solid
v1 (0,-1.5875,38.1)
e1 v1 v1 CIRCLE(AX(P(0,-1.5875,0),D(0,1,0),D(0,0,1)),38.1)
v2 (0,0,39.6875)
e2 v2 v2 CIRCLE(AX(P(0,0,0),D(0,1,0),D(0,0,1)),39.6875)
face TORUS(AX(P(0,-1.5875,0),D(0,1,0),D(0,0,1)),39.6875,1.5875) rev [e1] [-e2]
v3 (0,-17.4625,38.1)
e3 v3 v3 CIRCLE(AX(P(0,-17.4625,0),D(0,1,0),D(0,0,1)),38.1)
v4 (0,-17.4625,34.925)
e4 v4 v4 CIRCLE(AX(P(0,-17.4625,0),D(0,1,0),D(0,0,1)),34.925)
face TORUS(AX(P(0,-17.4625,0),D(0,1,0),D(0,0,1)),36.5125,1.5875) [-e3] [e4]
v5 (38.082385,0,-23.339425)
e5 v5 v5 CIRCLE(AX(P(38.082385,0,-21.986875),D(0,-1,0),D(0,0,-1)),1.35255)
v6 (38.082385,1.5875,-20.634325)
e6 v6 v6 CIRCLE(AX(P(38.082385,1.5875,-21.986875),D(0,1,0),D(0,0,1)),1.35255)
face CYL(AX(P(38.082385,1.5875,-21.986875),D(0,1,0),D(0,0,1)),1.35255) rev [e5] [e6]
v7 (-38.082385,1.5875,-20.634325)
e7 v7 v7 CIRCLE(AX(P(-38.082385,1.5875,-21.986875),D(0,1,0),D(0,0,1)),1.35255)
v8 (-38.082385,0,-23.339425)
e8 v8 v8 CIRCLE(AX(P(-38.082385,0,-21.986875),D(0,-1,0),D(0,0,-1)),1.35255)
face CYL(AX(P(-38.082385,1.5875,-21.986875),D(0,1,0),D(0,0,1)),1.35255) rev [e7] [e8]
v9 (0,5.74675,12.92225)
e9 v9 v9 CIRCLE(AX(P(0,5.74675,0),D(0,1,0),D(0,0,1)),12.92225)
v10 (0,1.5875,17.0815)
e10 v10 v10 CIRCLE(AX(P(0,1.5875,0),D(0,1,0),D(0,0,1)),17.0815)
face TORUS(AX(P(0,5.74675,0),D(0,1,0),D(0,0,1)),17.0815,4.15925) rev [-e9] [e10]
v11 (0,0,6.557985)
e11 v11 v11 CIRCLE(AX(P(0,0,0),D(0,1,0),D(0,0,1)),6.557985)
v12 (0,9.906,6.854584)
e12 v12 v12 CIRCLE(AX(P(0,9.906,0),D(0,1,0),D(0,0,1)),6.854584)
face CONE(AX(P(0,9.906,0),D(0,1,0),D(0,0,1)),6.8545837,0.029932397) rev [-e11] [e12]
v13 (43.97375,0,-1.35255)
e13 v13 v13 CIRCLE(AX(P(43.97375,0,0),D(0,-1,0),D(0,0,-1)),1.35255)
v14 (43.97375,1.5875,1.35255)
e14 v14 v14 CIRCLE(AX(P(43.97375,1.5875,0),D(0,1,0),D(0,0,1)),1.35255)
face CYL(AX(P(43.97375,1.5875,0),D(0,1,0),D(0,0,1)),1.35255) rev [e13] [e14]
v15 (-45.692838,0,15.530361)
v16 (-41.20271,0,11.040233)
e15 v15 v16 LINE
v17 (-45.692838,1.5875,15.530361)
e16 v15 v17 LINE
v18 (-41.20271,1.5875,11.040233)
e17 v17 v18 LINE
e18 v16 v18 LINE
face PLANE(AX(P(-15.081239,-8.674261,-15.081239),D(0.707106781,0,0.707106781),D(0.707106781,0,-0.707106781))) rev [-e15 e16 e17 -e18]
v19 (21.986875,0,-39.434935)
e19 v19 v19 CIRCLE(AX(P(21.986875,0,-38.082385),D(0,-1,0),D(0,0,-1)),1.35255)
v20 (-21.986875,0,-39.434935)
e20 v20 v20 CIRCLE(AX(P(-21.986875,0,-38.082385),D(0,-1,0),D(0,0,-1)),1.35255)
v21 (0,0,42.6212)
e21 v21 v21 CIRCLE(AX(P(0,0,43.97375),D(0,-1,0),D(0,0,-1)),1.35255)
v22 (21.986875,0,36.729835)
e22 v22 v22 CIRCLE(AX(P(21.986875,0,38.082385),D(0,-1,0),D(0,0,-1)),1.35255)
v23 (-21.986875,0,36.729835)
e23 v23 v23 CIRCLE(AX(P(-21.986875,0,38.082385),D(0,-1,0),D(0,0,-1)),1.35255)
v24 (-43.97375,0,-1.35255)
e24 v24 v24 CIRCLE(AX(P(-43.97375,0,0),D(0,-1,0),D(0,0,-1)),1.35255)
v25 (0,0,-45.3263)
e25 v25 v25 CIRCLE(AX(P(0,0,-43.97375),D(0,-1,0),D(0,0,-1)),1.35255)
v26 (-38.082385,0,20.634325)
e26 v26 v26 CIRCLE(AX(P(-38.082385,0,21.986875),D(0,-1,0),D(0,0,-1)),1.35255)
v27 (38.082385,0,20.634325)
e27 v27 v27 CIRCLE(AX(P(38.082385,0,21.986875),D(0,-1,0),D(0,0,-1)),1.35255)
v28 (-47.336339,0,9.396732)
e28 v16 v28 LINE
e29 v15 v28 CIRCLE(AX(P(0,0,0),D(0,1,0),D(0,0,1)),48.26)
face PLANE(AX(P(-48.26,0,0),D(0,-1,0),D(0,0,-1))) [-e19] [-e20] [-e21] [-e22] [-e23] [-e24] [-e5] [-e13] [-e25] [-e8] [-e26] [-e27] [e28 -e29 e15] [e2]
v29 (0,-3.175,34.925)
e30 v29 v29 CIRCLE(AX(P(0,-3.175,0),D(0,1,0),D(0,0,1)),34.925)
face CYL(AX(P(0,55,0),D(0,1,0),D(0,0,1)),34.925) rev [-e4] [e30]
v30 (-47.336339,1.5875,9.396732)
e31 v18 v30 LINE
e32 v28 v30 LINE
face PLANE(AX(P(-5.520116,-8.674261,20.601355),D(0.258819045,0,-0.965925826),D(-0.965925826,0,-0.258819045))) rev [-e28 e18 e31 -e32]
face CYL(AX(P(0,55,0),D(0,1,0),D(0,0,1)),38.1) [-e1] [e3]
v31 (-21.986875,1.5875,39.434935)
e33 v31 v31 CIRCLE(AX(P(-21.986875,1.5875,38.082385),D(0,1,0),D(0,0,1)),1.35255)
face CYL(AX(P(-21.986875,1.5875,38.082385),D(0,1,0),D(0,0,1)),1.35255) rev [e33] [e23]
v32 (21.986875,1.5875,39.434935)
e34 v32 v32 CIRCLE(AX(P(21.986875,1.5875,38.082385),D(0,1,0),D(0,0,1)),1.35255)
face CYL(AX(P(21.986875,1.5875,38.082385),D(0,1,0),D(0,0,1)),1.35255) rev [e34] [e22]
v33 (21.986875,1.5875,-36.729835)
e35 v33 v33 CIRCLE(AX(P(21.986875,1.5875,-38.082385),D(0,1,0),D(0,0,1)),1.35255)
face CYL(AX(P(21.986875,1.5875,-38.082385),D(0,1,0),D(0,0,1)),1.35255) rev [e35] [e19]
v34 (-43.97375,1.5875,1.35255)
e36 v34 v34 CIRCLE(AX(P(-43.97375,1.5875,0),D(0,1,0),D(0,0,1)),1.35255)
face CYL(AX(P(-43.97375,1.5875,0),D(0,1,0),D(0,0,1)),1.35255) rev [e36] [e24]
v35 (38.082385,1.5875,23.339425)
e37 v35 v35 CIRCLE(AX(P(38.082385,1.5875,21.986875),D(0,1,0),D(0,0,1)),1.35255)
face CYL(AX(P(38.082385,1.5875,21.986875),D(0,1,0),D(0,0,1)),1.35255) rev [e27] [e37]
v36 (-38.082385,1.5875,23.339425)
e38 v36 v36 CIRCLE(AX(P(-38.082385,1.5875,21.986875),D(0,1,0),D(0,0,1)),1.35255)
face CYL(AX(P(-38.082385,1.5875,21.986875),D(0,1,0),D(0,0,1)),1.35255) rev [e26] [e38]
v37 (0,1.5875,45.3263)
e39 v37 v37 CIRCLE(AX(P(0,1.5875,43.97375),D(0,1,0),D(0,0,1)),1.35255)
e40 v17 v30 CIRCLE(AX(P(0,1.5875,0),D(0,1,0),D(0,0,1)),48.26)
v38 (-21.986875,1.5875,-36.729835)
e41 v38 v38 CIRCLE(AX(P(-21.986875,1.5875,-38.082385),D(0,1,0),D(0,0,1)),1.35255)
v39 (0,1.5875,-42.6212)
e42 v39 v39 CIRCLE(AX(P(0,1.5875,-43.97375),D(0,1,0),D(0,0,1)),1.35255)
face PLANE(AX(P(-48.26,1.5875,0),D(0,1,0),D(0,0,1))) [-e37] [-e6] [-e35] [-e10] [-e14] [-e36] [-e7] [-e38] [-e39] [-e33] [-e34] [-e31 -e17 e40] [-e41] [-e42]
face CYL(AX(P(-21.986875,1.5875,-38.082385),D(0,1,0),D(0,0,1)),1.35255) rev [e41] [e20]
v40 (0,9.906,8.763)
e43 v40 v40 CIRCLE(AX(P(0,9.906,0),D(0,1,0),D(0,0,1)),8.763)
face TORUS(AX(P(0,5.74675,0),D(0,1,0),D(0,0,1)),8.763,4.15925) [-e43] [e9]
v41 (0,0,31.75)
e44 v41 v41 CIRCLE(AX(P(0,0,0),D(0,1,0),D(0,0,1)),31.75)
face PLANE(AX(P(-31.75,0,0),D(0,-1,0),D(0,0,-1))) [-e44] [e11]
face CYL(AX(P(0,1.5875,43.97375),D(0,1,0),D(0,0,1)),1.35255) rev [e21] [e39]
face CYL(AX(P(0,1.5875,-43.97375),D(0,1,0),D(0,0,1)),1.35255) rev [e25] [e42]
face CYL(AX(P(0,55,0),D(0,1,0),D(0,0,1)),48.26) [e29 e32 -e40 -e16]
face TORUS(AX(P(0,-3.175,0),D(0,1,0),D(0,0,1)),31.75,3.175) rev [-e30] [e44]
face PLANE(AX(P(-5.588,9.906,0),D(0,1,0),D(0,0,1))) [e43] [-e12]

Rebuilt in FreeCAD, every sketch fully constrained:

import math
import FreeCAD as App
import Part
import Sketcher
from FreeCAD import Vector
Q = App.Units.Quantity

doc = App.newDocument("Part")
params = doc.addObject("Spreadsheet::Sheet", "Params")
for row, (alias, value) in enumerate([
    ("sketch1_radius", "0.0625 in"),
    ("sketch1_radius2", "0.125 in"),
    ("sketch1_width", "1.03 in"),
    ("sketch1_height", "0.39 in"),
    ("sketch1_width2", "0.125 in"),
    ("revolution_angle", "360 deg"),
    ("hole_diameter", "0.1065 in"),
    ("sketch3_width", "1.14 in"),
    ("sketch3_width2", "0.75 in"),
    ("sketch3_height", "0.219 in"),
    ("groove_angle", "360 deg"),
    ("sketch4_radius", "1.9 in"),
    ("sketch4_length", "0.25 in"),
    ("pocket1_length", "0.0625 in"),
], start=1):
    params.set(f"A{row}", alias)
    params.set(f"B{row}", "=" + value)
    params.setAlias(f"B{row}", alias)

body = doc.addObject("PartDesign::Body", "Body")

sketch1 = doc.addObject("Sketcher::SketchObject", "Sketch")
body.addObject(sketch1)
sketch1.AttachmentSupport = (doc.XY_Plane, [""])
sketch1.MapMode = "FlatFace"
sketch1.addGeometry([
    Part.LineSegment(Vector(-48.3, 0, 0), Vector(-39.7, 0, 0)),
    Part.ArcOfCircle(Part.Circle(Vector(-39.7, -1.6, 0), Vector(0, 0, 1), 1.6), math.radians(0), math.radians(90)),
    Part.LineSegment(Vector(-38.1, -1.6, 0), Vector(-38.1, -17.5, 0)),
    Part.ArcOfCircle(Part.Circle(Vector(-36.5, -17.5, 0), Vector(0, 0, 1), 1.6), math.radians(180), math.radians(360)),
    Part.LineSegment(Vector(-34.9, -17.5, 0), Vector(-34.9, -3.2, 0)),
    Part.ArcOfCircle(Part.Circle(Vector(-31.7, -3.2, 0), Vector(0, 0, 1), 3.2), math.radians(90), math.radians(180)),
    Part.LineSegment(Vector(-31.8, 0, 0), Vector(-5.6, 0, 0)),
    Part.LineSegment(Vector(-5.6, 0, 0), Vector(-5.6, 9.9, 0)),
    Part.LineSegment(Vector(-5.6, 9.9, 0), Vector(-8.8, 9.9, 0)),
    Part.ArcOfCircle(Part.Circle(Vector(-8.8, 5.7, 0), Vector(0, 0, 1), 4.2), math.radians(90), math.radians(180)),
    Part.ArcOfCircle(Part.Circle(Vector(-17.1, 5.7, 0), Vector(0, 0, 1), 4.2), math.radians(-90), math.radians(0)),
    Part.LineSegment(Vector(-17.1, 1.6, 0), Vector(-48.3, 1.6, 0)),
    Part.LineSegment(Vector(-48.3, 1.6, 0), Vector(-48.3, 0, 0)),
], False)
sketch1.addConstraint([
    Sketcher.Constraint("Tangent", 0, 2, 1, 2),
    Sketcher.Constraint("Tangent", 1, 1, 2, 1),
    Sketcher.Constraint("Tangent", 2, 2, 3, 1),
    Sketcher.Constraint("Tangent", 3, 2, 4, 1),
    Sketcher.Constraint("Tangent", 4, 2, 5, 2),
    Sketcher.Constraint("Tangent", 5, 1, 6, 1),
    Sketcher.Constraint("Coincident", 6, 2, 7, 1),
    Sketcher.Constraint("Coincident", 7, 2, 8, 1),
    Sketcher.Constraint("Tangent", 8, 2, 9, 1),
    Sketcher.Constraint("Tangent", 9, 2, 10, 2),
    Sketcher.Constraint("Tangent", 10, 1, 11, 1),
    Sketcher.Constraint("Coincident", 11, 2, 12, 1),
    Sketcher.Constraint("Coincident", 12, 2, 0, 1),
    Sketcher.Constraint("Horizontal", 0),
    Sketcher.Constraint("Vertical", 2),
    Sketcher.Constraint("Vertical", 4),
    Sketcher.Constraint("Horizontal", 6),
    Sketcher.Constraint("Vertical", 7),
    Sketcher.Constraint("Horizontal", 8),
    Sketcher.Constraint("Horizontal", 11),
    Sketcher.Constraint("Vertical", 12),
    Sketcher.Constraint("Equal", 1, 3),
    Sketcher.Constraint("Equal", 9, 10),
    Sketcher.Constraint("PointOnObject", 0, 2, -1),
    Sketcher.Constraint("PointOnObject", 5, 1, -1),
    Sketcher.Constraint("Horizontal", 9, 3, 10, 3),
    Sketcher.Constraint("Radius", 1, Q("0.0625 in")),
    Sketcher.Constraint("Radius", 5, Q("0.125 in")),
    Sketcher.Constraint("DistanceX", 6, 1, 6, 2, Q("1.03 in")),
    Sketcher.Constraint("DistanceY", 7, 1, 7, 2, Q("0.39 in")),
    Sketcher.Constraint("DistanceX", 1, 1, -1, 1, Q("1.5 in")),
    Sketcher.Constraint("DistanceX", 11, 2, -1, 1, Q("1.9 in")),
    Sketcher.Constraint("DistanceX", 8, 2, 8, 1, Q("0.125 in")),
    Sketcher.Constraint("DistanceY", 2, 2, 2, 1, Q("0.625 in")),
    Sketcher.Constraint("DistanceY", 12, 2, 12, 1, Q("0.0625 in")),
])
sketch1.setExpression("Constraints[26]", "Params.sketch1_radius")
sketch1.setExpression("Constraints[27]", "Params.sketch1_radius2")
sketch1.setExpression("Constraints[28]", "Params.sketch1_width")
sketch1.setExpression("Constraints[29]", "Params.sketch1_height")
sketch1.setExpression("Constraints[32]", "Params.sketch1_width2")
revolution = doc.addObject("PartDesign::Revolution", "Revolution")
body.addObject(revolution)
revolution.Profile = sketch1
revolution.ReferenceAxis = (sketch1, ["V_Axis"])
revolution.setExpression("Angle", "Params.revolution_angle")

sketch2 = doc.addObject("Sketcher::SketchObject", "Sketch001")
body.addObject(sketch2)
sketch2.AttachmentSupport = (doc.XZ_Plane, [""])
sketch2.MapMode = "FlatFace"
sketch2.AttachmentOffset = App.Placement(Vector(0, 0, -0.0625 * 25.4), App.Rotation())
sketch2.addGeometry(Part.Circle(Vector(-44, 0, 0), Vector(0, 0, 1), 1.4), False)
sketch2.addConstraint([
    Sketcher.Constraint("PointOnObject", 0, 3, -1),
    Sketcher.Constraint("Diameter", 0, Q("0.1065 in")),
    Sketcher.Constraint("DistanceX", 0, 3, -1, 1, 43.97375),
])
doc.recompute()
hole = doc.addObject("PartDesign::Hole", "Hole")
body.addObject(hole)
hole.Profile = sketch2
hole.ThreadType = "None"
hole.setExpression("Diameter", "Params.hole_diameter")
hole.DepthType = "ThroughAll"
hole.Reversed = True
doc.recompute()

polarpattern = doc.addObject("PartDesign::PolarPattern", "PolarPattern")
body.addObject(polarpattern)
polarpattern.Originals = [hole]
polarpattern.Axis = (doc.Y_Axis, [""])
polarpattern.Angle = 360
polarpattern.Occurrences = 12
body.Tip = polarpattern

sketch3 = doc.addObject("Sketcher::SketchObject", "Sketch002")
body.addObject(sketch3)
sketch3.AttachmentSupport = (doc.YZ_Plane, [""])
sketch3.MapMode = "FlatFace"
sketch3.addGeometry([
    Part.LineSegment(Vector(-19.1, 0, 0), Vector(9.9, 0, 0)),
    Part.LineSegment(Vector(9.9, 0, 0), Vector(9.9, 6.9, 0)),
    Part.LineSegment(Vector(9.9, 6.9, 0), Vector(0, 6.6, 0)),
    Part.LineSegment(Vector(0, 6.6, 0), Vector(0, 5.6, 0)),
    Part.LineSegment(Vector(0, 5.6, 0), Vector(-19.1, 5.6, 0)),
    Part.LineSegment(Vector(-19.1, 5.6, 0), Vector(-19.1, 0, 0)),
], False)
sketch3.addConstraint([
    Sketcher.Constraint("Coincident", 0, 2, 1, 1),
    Sketcher.Constraint("Coincident", 1, 2, 2, 1),
    Sketcher.Constraint("Coincident", 2, 2, 3, 1),
    Sketcher.Constraint("Coincident", 3, 2, 4, 1),
    Sketcher.Constraint("Coincident", 4, 2, 5, 1),
    Sketcher.Constraint("Coincident", 5, 2, 0, 1),
    Sketcher.Constraint("Horizontal", 0),
    Sketcher.Constraint("Vertical", 1),
    Sketcher.Constraint("Vertical", 3),
    Sketcher.Constraint("Horizontal", 4),
    Sketcher.Constraint("Vertical", 5),
    Sketcher.Constraint("PointOnObject", 0, 2, -1),
    Sketcher.Constraint("PointOnObject", 2, 2, -2),
    Sketcher.Constraint("DistanceX", 0, 1, 0, 2, Q("1.14 in")),
    Sketcher.Constraint("DistanceX", 4, 2, 4, 1, Q("0.75 in")),
    Sketcher.Constraint("DistanceY", 5, 2, 5, 1, Q("0.219 in")),
    Sketcher.Constraint("DistanceY", 2, 2, 1, 2, 0.296599),
    Sketcher.Constraint("DistanceY", 1, 1, 1, 2, 6.854584),
])
sketch3.setExpression("Constraints[13]", "Params.sketch3_width")
sketch3.setExpression("Constraints[14]", "Params.sketch3_width2")
sketch3.setExpression("Constraints[15]", "Params.sketch3_height")
groove = doc.addObject("PartDesign::Groove", "Groove")
body.addObject(groove)
groove.Profile = sketch3
groove.ReferenceAxis = (sketch3, ["H_Axis"])
groove.setExpression("Angle", "Params.groove_angle")

sketch4 = doc.addObject("Sketcher::SketchObject", "Sketch003")
body.addObject(sketch4)
sketch4.AttachmentSupport = (doc.XZ_Plane, [""])
sketch4.MapMode = "FlatFace"
sketch4.AttachmentOffset = App.Placement(Vector(0, 0, -0.0625 * 25.4), App.Rotation())
sketch4.addGeometry([
    Part.LineSegment(Vector(-46, 16, 0), Vector(-41, 11, 0)),
    Part.LineSegment(Vector(-41, 11, 0), Vector(-47, 9, 0)),
    Part.ArcOfCircle(Part.Circle(Vector(0, 0, 0), Vector(0, 0, 1), 48), math.radians(161.23), math.radians(168.77)),
], False)
sketch4.addConstraint([
    Sketcher.Constraint("Coincident", 0, 2, 1, 1),
    Sketcher.Constraint("Coincident", 1, 2, 2, 2),
    Sketcher.Constraint("Coincident", 2, 1, 0, 1),
    Sketcher.Constraint("Coincident", 2, 3, -1, 1),
    Sketcher.Constraint("Equal", 0, 1),
    Sketcher.Constraint("Radius", 2, Q("1.9 in")),
    Sketcher.Constraint("Angle", 0, Q("-45 deg")),
    Sketcher.Constraint("Angle", 1, Q("-165 deg")),
    Sketcher.Constraint("Distance", 0, Q("0.25 in")),
])
sketch4.setExpression("Constraints[5]", "Params.sketch4_radius")
sketch4.setExpression("Constraints[8]", "Params.sketch4_length")
pocket1 = doc.addObject("PartDesign::Pocket", "Pocket")
body.addObject(pocket1)
pocket1.Profile = sketch4
pocket1.setExpression("Length", "Params.pocket1_length")
pocket1.Reversed = True

doc.recompute()
